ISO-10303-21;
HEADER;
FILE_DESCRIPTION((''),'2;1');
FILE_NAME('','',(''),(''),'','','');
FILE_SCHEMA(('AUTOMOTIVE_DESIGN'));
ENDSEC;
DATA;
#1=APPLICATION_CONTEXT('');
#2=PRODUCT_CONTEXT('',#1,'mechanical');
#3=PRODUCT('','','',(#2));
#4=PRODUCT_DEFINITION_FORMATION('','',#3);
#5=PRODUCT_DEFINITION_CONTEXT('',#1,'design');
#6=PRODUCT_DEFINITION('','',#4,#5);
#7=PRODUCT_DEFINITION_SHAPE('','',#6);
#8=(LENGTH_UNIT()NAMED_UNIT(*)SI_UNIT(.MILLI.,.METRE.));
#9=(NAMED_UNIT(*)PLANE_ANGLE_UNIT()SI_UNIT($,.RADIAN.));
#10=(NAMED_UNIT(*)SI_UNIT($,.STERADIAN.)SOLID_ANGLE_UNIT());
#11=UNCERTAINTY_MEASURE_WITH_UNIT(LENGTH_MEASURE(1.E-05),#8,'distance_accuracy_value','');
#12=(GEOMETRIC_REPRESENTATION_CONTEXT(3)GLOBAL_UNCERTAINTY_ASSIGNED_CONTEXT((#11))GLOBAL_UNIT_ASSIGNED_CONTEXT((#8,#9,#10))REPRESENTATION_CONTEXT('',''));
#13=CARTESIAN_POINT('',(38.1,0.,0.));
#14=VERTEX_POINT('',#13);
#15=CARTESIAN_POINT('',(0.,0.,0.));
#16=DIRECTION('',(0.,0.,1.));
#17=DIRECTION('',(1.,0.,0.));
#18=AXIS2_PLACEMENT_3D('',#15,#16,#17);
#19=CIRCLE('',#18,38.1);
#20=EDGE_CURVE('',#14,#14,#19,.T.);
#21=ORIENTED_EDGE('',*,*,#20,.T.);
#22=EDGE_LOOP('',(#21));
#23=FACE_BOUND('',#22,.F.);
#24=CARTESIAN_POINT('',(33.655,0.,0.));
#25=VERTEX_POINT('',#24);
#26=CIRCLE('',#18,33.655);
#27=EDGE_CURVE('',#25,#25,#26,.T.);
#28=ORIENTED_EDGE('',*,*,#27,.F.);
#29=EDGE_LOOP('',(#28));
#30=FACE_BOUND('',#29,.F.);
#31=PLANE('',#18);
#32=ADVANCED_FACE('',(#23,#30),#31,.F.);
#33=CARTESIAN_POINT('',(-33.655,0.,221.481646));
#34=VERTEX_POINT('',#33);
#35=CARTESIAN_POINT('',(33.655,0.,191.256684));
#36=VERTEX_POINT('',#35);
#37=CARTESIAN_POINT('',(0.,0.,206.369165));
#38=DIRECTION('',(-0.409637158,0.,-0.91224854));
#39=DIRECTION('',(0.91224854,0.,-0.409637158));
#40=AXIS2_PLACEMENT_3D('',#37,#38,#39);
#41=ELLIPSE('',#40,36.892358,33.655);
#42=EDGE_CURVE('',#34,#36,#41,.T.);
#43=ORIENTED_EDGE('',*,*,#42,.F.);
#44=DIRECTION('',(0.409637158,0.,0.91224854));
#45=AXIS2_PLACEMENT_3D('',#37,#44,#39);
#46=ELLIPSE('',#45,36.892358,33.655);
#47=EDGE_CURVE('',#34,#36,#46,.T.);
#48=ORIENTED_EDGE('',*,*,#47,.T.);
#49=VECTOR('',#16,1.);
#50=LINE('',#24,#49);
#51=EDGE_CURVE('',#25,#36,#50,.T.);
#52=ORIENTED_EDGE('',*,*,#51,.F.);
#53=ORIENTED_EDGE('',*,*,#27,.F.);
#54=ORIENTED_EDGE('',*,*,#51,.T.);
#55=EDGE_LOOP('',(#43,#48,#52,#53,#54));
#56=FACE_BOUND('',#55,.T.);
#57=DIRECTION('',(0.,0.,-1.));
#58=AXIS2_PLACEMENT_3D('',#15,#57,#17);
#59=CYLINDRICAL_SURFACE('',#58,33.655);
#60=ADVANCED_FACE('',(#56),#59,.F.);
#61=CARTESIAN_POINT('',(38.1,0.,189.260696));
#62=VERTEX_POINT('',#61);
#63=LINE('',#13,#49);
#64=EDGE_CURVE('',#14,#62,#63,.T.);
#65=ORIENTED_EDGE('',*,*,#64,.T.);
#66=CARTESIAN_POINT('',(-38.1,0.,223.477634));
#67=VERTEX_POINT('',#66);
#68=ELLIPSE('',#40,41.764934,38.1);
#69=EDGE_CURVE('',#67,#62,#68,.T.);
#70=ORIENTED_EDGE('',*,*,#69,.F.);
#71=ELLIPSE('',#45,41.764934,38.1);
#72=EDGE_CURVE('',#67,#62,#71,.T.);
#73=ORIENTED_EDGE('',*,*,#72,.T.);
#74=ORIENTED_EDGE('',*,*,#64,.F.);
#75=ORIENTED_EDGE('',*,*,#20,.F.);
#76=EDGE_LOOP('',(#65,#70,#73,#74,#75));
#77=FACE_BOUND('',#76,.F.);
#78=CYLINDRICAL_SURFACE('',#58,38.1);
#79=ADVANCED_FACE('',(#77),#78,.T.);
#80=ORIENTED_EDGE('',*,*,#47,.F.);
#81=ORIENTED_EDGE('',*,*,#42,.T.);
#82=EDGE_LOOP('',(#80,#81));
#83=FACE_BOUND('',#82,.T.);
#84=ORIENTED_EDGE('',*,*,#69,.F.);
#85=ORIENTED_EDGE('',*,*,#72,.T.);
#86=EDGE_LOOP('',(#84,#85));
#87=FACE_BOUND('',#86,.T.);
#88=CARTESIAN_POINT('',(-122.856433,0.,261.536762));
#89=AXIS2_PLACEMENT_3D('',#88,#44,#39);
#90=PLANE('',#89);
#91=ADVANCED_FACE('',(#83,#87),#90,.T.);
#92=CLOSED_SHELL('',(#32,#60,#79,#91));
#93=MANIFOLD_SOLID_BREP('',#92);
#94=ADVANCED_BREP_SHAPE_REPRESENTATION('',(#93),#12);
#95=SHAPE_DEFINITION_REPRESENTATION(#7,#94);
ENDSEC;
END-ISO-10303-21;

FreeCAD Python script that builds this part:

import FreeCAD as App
import Part
import Sketcher

V = App.Vector
Q = App.Units.Quantity

doc = App.newDocument("Part")
body = doc.addObject("PartDesign::Body", "Body")

sketch1 = body.newObject("Sketcher::SketchObject", "Sketch")
sketch1.AttachmentSupport = (doc.getObject("XY_Plane"), [""])
sketch1.MapMode = "FlatFace"
sketch1.addGeometry([
    Part.Circle(V(0, 0, 0), V(0, 0, 1), 38),
    Part.Circle(V(0, 0, 0), V(0, 0, 1), 34),
], False)
sketch1.addConstraint([
    Sketcher.Constraint("Coincident", 0, 3, -1, 1),
    Sketcher.Constraint("Coincident", 1, 3, -1, 1),
    Sketcher.Constraint("Diameter", 0, Q("3 in")),
    Sketcher.Constraint("Diameter", 1, Q("2.65 in")),
])
pad1 = body.newObject("PartDesign::Pad", "Pad")
pad1.Profile = sketch1
pad1.Length = Q("10 in")

sketch2 = body.newObject("Sketcher::SketchObject", "Sketch001")
sketch2.AttachmentSupport = (doc.getObject("XZ_Plane"), [""])
sketch2.MapMode = "FlatFace"
sketch2.addGeometry([
    Part.LineSegment(V(53, 262, 0), V(-123, 262, 0)),
    Part.LineSegment(V(-123, 262, 0), V(53, 183, 0)),
    Part.LineSegment(V(53, 183, 0), V(53, 262, 0)),
], False)
sketch2.addConstraint([
    Sketcher.Constraint("Coincident", 0, 2, 1, 1),
    Sketcher.Constraint("Coincident", 1, 2, 2, 1),
    Sketcher.Constraint("Coincident", 2, 2, 0, 1),
    Sketcher.Constraint("Horizontal", 0),
    Sketcher.Constraint("Vertical", 2),
    Sketcher.Constraint("DistanceX", 0, 2, 0, 1, Q("175.548883 mm")),
    Sketcher.Constraint("DistanceY", 2, 1, 2, 2, Q("78.828677 mm")),
    Sketcher.Constraint("DistanceX", -1, 1, 1, 2, Q("52.692451 mm")),
    Sketcher.Constraint("DistanceY", -1, 1, 0, 2, Q("261.536762 mm")),
])
pocket1 = body.newObject("PartDesign::Pocket", "Pocket")
pocket1.Profile = sketch2
pocket1.Type = "ThroughAll"
pocket1.Midplane = True

doc.recompute()
